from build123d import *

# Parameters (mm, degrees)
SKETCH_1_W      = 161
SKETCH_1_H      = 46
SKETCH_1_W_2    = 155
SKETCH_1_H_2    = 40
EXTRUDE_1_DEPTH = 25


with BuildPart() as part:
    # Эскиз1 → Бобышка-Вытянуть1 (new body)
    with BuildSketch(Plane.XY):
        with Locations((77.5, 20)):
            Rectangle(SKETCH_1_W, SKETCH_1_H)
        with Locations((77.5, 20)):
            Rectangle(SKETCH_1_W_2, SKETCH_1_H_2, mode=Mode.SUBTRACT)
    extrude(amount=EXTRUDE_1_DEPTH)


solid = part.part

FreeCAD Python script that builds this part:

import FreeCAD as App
import Part
import Sketcher


def add_polygon(sketch, points):
    """Adds a closed chain of lines whose ends are joined by coincident constraints."""
    first, n = sketch.GeometryCount, len(points)
    for a, b in zip(points, points[1:] + points[:1]):
        sketch.addGeometry(Part.LineSegment(App.Vector(*a, 0), App.Vector(*b, 0)), False)
    for i in range(n):
        sketch.addConstraint(Sketcher.Constraint("Coincident", first + i, 2, first + (i + 1) % n, 1))

doc = App.newDocument("Part")
body = doc.addObject("PartDesign::Body", "Body")

sketch1 = body.newObject("Sketcher::SketchObject", "Sketch")
sketch1.AttachmentSupport = (doc.getObject("XY_Plane"), [""])
sketch1.MapMode = "FlatFace"
add_polygon(sketch1, [(-3, 43), (-3, -3), (158, -3), (158, 43)])
add_polygon(sketch1, [(155, 0), (0, 0), (0, 40), (155, 40)])
sketch1.addConstraint(Sketcher.Constraint("Vertical", 0))
sketch1.addConstraint(Sketcher.Constraint("Horizontal", 1))
sketch1.addConstraint(Sketcher.Constraint("Vertical", 2))
sketch1.addConstraint(Sketcher.Constraint("Horizontal", 3))
sketch1.addConstraint(Sketcher.Constraint("Horizontal", 4))
sketch1.addConstraint(Sketcher.Constraint("Vertical", 5))
sketch1.addConstraint(Sketcher.Constraint("Horizontal", 6))
sketch1.addConstraint(Sketcher.Constraint("Vertical", 7))
sketch1.addConstraint(Sketcher.Constraint("Coincident", 4, 2, -1, 1))
sketch1.addConstraint(Sketcher.Constraint("DistanceX", 1, 1, 1, 2, 161.0))
sketch1.addConstraint(Sketcher.Constraint("DistanceX", 4, 2, 4, 1, 155.0))
sketch1.addConstraint(Sketcher.Constraint("DistanceY", 0, 2, 0, 1, 46.0))
sketch1.addConstraint(Sketcher.Constraint("DistanceY", 5, 1, 5, 2, 40.0))
sketch1.addConstraint(Sketcher.Constraint("DistanceX", 0, 2, -1, 1, 3.0))
sketch1.addConstraint(Sketcher.Constraint("DistanceY", 0, 2, -1, 1, 3.0))
pad1 = body.newObject("PartDesign::Pad", "Pad")
pad1.Profile = sketch1
pad1.Length = 25

doc.recompute()
